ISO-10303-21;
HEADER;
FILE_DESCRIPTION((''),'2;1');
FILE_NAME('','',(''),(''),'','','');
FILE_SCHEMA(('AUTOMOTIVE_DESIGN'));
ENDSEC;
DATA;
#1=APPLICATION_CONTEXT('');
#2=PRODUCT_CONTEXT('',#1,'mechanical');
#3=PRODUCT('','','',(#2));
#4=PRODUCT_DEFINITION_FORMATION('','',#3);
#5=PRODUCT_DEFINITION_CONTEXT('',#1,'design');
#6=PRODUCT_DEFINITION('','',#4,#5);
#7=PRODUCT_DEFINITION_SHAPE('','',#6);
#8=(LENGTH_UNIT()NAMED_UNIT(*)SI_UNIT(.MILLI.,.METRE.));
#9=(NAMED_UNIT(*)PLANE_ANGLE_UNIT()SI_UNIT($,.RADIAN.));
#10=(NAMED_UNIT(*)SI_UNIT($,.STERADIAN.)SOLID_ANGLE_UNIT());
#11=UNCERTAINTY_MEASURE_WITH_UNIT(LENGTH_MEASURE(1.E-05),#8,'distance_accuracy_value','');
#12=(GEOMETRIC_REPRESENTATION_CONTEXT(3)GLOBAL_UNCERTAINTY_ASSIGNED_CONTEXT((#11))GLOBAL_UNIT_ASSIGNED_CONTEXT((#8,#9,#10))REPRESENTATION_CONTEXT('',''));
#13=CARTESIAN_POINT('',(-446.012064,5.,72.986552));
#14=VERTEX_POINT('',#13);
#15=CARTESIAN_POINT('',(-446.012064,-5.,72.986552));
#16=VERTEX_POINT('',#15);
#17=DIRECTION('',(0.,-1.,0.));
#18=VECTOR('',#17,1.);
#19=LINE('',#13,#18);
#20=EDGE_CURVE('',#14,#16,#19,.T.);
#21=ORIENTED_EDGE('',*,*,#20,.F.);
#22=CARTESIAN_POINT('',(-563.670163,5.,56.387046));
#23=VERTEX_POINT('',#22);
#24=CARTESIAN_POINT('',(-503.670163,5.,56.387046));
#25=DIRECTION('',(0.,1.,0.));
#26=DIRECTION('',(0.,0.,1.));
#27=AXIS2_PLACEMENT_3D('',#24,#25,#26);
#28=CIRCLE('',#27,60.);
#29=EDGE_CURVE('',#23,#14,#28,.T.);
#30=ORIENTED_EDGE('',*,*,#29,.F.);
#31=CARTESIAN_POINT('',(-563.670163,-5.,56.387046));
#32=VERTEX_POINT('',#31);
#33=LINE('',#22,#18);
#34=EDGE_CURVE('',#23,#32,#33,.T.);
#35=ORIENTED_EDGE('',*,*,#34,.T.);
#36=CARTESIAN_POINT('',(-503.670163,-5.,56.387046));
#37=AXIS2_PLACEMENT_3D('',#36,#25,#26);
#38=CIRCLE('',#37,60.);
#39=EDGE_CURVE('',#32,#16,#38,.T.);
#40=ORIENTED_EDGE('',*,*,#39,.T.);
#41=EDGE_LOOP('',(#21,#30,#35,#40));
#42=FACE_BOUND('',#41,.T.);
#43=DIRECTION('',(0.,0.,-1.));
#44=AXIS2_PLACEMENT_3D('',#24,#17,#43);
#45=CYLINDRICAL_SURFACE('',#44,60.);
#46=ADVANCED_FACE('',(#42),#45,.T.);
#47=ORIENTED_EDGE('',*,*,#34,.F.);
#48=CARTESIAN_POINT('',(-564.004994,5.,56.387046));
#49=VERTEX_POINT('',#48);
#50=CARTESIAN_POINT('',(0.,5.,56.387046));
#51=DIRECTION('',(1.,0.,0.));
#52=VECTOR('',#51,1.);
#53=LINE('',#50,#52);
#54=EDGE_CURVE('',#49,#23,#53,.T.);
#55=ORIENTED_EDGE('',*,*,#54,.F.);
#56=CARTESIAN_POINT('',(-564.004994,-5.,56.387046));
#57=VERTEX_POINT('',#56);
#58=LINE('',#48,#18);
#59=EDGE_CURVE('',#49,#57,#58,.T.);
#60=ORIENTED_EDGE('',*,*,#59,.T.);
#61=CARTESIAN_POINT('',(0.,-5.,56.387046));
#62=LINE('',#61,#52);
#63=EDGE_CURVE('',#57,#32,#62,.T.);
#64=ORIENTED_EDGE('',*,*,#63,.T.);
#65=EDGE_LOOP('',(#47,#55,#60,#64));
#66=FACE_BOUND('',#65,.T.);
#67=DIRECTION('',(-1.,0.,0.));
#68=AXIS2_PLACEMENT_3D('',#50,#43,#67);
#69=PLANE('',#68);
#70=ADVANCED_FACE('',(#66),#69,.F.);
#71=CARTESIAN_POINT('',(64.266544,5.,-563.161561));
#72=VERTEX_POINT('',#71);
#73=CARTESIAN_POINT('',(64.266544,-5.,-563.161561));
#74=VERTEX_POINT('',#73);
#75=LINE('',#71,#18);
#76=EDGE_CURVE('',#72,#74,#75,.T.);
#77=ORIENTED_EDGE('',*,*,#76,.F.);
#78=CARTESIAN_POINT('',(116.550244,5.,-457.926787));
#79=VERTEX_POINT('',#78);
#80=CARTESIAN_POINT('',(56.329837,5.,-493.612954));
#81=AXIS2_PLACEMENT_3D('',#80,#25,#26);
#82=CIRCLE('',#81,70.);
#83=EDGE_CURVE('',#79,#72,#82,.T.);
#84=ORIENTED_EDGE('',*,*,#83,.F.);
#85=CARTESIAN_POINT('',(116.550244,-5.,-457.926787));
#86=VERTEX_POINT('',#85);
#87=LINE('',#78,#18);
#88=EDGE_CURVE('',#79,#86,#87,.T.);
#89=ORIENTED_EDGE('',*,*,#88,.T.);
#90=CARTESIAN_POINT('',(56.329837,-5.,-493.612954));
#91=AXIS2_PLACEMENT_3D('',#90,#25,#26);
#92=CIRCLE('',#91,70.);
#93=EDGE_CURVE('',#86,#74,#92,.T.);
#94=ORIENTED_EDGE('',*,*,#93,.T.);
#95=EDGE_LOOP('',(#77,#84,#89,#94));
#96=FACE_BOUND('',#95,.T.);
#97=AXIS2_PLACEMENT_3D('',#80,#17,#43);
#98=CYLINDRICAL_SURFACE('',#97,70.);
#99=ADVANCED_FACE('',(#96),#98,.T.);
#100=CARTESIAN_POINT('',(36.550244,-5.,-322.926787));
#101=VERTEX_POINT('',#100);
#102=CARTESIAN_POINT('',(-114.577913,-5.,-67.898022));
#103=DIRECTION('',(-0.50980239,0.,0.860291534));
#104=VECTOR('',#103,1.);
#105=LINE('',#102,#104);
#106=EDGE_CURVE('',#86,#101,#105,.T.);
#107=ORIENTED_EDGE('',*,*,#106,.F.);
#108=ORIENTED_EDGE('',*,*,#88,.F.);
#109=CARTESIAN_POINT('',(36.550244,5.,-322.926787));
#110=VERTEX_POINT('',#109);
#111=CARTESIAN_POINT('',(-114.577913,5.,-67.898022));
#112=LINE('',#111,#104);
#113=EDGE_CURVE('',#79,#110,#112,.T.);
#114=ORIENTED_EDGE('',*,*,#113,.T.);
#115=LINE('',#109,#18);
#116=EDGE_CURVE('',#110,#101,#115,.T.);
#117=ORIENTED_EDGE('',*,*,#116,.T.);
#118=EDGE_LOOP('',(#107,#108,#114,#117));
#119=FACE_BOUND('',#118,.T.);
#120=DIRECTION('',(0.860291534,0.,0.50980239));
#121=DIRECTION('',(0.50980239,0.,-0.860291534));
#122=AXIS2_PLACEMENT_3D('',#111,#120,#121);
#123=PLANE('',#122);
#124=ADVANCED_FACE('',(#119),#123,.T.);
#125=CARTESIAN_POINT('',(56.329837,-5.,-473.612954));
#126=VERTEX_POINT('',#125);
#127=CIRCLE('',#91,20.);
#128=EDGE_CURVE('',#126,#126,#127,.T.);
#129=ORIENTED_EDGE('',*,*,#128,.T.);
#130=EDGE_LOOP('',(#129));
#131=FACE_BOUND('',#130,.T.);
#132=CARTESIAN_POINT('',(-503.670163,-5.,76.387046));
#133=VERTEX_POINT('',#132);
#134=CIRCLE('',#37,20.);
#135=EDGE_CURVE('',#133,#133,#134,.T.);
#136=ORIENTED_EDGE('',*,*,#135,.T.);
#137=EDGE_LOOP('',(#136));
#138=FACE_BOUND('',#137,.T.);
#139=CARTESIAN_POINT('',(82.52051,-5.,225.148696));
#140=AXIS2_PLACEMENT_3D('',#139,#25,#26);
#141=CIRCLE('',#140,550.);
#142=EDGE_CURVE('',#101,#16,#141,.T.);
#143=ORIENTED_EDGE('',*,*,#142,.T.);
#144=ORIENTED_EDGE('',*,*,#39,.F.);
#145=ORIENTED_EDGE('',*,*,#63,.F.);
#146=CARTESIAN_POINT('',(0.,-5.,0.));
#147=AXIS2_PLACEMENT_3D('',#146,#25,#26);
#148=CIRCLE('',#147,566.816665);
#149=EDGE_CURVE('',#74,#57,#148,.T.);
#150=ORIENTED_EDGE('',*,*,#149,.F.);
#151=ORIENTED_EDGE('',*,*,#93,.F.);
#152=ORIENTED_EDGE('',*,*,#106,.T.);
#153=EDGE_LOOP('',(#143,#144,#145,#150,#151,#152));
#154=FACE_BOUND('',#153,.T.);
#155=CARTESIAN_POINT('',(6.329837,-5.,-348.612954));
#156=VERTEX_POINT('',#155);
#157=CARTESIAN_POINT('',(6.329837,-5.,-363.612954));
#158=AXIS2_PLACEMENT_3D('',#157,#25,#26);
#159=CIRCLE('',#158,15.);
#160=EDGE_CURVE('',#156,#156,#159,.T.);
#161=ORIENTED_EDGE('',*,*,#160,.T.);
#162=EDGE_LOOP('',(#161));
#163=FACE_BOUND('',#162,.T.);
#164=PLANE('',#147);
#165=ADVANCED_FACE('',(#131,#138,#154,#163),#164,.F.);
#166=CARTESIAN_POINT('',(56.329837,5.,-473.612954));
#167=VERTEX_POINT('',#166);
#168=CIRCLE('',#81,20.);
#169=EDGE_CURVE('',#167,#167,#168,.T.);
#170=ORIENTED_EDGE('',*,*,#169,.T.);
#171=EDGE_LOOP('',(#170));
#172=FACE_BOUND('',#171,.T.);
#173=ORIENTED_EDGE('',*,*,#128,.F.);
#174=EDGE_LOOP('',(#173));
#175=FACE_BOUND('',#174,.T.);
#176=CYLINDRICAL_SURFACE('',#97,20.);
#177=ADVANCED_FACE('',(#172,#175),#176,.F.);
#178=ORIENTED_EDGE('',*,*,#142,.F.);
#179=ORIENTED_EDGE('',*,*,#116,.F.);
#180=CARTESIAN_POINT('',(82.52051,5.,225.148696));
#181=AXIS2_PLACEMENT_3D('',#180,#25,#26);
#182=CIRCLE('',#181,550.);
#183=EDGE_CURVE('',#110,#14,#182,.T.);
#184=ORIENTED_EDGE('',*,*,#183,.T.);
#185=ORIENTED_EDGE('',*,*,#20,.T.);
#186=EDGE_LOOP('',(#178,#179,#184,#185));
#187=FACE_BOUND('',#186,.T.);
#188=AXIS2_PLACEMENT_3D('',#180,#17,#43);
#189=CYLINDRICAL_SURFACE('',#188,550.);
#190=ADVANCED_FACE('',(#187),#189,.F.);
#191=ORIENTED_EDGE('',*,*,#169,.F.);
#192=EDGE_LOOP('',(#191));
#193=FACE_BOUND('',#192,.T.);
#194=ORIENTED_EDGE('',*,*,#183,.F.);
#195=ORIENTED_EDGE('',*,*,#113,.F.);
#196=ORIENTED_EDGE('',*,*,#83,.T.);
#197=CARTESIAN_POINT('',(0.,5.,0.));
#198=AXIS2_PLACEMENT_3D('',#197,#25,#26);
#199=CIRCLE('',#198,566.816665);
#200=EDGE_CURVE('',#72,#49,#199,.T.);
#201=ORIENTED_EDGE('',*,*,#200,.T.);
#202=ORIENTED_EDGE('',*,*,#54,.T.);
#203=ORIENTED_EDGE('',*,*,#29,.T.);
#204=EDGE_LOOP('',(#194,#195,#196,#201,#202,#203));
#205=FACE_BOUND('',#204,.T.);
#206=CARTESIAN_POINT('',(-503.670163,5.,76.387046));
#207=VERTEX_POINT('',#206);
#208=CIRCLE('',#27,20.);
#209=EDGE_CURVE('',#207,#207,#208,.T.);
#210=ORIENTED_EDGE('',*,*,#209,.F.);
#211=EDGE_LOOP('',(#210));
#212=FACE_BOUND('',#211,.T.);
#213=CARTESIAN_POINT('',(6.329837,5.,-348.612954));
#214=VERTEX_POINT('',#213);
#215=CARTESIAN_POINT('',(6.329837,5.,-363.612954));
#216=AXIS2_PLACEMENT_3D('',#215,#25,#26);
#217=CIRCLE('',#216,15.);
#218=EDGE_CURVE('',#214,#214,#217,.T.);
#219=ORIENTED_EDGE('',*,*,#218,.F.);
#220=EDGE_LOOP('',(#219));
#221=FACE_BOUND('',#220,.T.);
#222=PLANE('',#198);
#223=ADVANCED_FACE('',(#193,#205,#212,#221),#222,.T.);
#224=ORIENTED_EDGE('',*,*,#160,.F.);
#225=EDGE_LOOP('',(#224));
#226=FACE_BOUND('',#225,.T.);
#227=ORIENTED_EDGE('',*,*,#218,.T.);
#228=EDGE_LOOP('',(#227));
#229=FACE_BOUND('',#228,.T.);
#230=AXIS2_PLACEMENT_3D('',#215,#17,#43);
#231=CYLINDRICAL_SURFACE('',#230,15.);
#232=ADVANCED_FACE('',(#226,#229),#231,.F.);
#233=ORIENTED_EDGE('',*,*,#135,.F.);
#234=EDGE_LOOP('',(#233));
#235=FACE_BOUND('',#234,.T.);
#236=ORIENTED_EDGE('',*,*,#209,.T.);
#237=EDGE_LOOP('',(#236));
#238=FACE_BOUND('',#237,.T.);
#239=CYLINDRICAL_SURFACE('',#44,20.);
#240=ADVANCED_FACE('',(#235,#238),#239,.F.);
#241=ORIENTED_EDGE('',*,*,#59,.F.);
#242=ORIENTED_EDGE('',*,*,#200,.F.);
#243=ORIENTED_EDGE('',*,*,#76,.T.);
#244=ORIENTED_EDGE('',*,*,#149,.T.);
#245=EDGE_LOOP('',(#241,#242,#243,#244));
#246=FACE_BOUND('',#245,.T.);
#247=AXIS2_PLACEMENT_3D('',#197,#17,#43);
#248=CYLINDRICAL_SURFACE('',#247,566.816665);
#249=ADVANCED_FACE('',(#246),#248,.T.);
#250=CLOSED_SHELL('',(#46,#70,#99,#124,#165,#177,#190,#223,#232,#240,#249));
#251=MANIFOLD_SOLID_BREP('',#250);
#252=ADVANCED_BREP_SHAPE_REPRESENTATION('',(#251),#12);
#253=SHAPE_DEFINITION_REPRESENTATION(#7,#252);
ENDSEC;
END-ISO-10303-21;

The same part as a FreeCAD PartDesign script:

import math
import FreeCAD as App
import Part
import Sketcher
Q = App.Units.Quantity

doc = App.newDocument("Part")
body = doc.addObject("PartDesign::Body", "Body")

sketch1 = body.newObject("Sketcher::SketchObject", "Sketch")
sketch1.AttachmentSupport = (doc.getObject("XZ_Plane"), [""])
sketch1.MapMode = "FlatFace"
sketch1.addGeometry([
    Part.ArcOfCircle(Part.Circle(App.Vector(0, 0, 0), App.Vector(0, 0, 1), 566.816665), math.radians(174.29076), math.radians(276.510283)),
    Part.LineSegment(App.Vector(-564.004994, 56.387046, 0), App.Vector(-563.670163, 56.387046, 0)),
    Part.ArcOfCircle(Part.Circle(App.Vector(-503.670164, 56.387046, 0), App.Vector(0, 0, 1), 60), math.radians(173.612202), math.radians(180)),
    Part.ArcOfCircle(Part.Circle(App.Vector(-503.670163, 56.387046, 0), App.Vector(0, 0, 1), 60), math.radians(16.060871), math.radians(173.612202)),
    Part.ArcOfCircle(Part.Circle(App.Vector(82.52051, 225.148696, 0), App.Vector(0, 0, 1), 550), math.radians(-163.939129), math.radians(-94.794507)),
    Part.LineSegment(App.Vector(36.550244, -322.926787, 0), App.Vector(116.550244, -457.926787, 0)),
    Part.ArcOfCircle(Part.Circle(App.Vector(56.329837, -493.612954, 0), App.Vector(0, 0, 1), 70), math.radians(-83.489717), math.radians(30.650668)),
    Part.Circle(App.Vector(-503.670163, 56.387046, 0), App.Vector(0, 0, 1), 20),
    Part.Circle(App.Vector(6.329837, -363.612954, 0), App.Vector(0, 0, 1), 15),
    Part.Circle(App.Vector(56.329837, -493.612954, 0), App.Vector(0, 0, 1), 20),
], False)
sketch1.addConstraint([
    Sketcher.Constraint("Coincident", 0, 1, 1, 1),
    Sketcher.Constraint("Coincident", 1, 2, 2, 2),
    Sketcher.Constraint("Tangent", 2, 1, 3, 2),
    Sketcher.Constraint("Tangent", 3, 1, 4, 1),
    Sketcher.Constraint("Coincident", 4, 2, 5, 1),
    Sketcher.Constraint("Tangent", 5, 2, 6, 2),
    Sketcher.Constraint("Tangent", 6, 1, 0, 2),
    Sketcher.Constraint("Horizontal", 1),
    Sketcher.Constraint("Coincident", 0, 3, -1, 1),
    Sketcher.Constraint("Coincident", 7, 3, 2, 3),
    Sketcher.Constraint("Coincident", 9, 3, 6, 3),
    Sketcher.Constraint("Equal", 2, 3),
    Sketcher.Constraint("Equal", 7, 9),
    Sketcher.Constraint("Diameter", 7, Q("40 mm")),
    Sketcher.Constraint("Diameter", 8, Q("30 mm")),
    Sketcher.Constraint("Radius", 2, Q("60 mm")),
    Sketcher.Constraint("Radius", 4, Q("550 mm")),
    Sketcher.Constraint("Radius", 6, Q("70 mm")),
    Sketcher.Constraint("DistanceX", 3, 3, 6, 3, Q("560 mm")),
    Sketcher.Constraint("DistanceY", 6, 3, 3, 3, Q("550 mm")),
    Sketcher.Constraint("DistanceX", 8, 3, 6, 3, Q("50 mm")),
    Sketcher.Constraint("DistanceY", 6, 3, 8, 3, Q("130 mm")),
    Sketcher.Constraint("DistanceY", 5, 2, 4, 2, Q("135 mm")),
    Sketcher.Constraint("Radius", 0, Q("566.816665 mm")),
    Sketcher.Constraint("DistanceX", 1, 1, 1, 2, Q("0.334831 mm")),
    Sketcher.Constraint("DistanceX", 1, 2, 2, 1, Q("0.372502 mm")),
    Sketcher.Constraint("DistanceX", 6, 1, 5, 2, Q("52.2837 mm")),
    Sketcher.Constraint("Distance", 5, Q("156.923548 mm")),
])
pad1 = body.newObject("PartDesign::Pad", "Pad")
pad1.Profile = sketch1
pad1.Length = 10
pad1.Midplane = True

doc.recompute()
